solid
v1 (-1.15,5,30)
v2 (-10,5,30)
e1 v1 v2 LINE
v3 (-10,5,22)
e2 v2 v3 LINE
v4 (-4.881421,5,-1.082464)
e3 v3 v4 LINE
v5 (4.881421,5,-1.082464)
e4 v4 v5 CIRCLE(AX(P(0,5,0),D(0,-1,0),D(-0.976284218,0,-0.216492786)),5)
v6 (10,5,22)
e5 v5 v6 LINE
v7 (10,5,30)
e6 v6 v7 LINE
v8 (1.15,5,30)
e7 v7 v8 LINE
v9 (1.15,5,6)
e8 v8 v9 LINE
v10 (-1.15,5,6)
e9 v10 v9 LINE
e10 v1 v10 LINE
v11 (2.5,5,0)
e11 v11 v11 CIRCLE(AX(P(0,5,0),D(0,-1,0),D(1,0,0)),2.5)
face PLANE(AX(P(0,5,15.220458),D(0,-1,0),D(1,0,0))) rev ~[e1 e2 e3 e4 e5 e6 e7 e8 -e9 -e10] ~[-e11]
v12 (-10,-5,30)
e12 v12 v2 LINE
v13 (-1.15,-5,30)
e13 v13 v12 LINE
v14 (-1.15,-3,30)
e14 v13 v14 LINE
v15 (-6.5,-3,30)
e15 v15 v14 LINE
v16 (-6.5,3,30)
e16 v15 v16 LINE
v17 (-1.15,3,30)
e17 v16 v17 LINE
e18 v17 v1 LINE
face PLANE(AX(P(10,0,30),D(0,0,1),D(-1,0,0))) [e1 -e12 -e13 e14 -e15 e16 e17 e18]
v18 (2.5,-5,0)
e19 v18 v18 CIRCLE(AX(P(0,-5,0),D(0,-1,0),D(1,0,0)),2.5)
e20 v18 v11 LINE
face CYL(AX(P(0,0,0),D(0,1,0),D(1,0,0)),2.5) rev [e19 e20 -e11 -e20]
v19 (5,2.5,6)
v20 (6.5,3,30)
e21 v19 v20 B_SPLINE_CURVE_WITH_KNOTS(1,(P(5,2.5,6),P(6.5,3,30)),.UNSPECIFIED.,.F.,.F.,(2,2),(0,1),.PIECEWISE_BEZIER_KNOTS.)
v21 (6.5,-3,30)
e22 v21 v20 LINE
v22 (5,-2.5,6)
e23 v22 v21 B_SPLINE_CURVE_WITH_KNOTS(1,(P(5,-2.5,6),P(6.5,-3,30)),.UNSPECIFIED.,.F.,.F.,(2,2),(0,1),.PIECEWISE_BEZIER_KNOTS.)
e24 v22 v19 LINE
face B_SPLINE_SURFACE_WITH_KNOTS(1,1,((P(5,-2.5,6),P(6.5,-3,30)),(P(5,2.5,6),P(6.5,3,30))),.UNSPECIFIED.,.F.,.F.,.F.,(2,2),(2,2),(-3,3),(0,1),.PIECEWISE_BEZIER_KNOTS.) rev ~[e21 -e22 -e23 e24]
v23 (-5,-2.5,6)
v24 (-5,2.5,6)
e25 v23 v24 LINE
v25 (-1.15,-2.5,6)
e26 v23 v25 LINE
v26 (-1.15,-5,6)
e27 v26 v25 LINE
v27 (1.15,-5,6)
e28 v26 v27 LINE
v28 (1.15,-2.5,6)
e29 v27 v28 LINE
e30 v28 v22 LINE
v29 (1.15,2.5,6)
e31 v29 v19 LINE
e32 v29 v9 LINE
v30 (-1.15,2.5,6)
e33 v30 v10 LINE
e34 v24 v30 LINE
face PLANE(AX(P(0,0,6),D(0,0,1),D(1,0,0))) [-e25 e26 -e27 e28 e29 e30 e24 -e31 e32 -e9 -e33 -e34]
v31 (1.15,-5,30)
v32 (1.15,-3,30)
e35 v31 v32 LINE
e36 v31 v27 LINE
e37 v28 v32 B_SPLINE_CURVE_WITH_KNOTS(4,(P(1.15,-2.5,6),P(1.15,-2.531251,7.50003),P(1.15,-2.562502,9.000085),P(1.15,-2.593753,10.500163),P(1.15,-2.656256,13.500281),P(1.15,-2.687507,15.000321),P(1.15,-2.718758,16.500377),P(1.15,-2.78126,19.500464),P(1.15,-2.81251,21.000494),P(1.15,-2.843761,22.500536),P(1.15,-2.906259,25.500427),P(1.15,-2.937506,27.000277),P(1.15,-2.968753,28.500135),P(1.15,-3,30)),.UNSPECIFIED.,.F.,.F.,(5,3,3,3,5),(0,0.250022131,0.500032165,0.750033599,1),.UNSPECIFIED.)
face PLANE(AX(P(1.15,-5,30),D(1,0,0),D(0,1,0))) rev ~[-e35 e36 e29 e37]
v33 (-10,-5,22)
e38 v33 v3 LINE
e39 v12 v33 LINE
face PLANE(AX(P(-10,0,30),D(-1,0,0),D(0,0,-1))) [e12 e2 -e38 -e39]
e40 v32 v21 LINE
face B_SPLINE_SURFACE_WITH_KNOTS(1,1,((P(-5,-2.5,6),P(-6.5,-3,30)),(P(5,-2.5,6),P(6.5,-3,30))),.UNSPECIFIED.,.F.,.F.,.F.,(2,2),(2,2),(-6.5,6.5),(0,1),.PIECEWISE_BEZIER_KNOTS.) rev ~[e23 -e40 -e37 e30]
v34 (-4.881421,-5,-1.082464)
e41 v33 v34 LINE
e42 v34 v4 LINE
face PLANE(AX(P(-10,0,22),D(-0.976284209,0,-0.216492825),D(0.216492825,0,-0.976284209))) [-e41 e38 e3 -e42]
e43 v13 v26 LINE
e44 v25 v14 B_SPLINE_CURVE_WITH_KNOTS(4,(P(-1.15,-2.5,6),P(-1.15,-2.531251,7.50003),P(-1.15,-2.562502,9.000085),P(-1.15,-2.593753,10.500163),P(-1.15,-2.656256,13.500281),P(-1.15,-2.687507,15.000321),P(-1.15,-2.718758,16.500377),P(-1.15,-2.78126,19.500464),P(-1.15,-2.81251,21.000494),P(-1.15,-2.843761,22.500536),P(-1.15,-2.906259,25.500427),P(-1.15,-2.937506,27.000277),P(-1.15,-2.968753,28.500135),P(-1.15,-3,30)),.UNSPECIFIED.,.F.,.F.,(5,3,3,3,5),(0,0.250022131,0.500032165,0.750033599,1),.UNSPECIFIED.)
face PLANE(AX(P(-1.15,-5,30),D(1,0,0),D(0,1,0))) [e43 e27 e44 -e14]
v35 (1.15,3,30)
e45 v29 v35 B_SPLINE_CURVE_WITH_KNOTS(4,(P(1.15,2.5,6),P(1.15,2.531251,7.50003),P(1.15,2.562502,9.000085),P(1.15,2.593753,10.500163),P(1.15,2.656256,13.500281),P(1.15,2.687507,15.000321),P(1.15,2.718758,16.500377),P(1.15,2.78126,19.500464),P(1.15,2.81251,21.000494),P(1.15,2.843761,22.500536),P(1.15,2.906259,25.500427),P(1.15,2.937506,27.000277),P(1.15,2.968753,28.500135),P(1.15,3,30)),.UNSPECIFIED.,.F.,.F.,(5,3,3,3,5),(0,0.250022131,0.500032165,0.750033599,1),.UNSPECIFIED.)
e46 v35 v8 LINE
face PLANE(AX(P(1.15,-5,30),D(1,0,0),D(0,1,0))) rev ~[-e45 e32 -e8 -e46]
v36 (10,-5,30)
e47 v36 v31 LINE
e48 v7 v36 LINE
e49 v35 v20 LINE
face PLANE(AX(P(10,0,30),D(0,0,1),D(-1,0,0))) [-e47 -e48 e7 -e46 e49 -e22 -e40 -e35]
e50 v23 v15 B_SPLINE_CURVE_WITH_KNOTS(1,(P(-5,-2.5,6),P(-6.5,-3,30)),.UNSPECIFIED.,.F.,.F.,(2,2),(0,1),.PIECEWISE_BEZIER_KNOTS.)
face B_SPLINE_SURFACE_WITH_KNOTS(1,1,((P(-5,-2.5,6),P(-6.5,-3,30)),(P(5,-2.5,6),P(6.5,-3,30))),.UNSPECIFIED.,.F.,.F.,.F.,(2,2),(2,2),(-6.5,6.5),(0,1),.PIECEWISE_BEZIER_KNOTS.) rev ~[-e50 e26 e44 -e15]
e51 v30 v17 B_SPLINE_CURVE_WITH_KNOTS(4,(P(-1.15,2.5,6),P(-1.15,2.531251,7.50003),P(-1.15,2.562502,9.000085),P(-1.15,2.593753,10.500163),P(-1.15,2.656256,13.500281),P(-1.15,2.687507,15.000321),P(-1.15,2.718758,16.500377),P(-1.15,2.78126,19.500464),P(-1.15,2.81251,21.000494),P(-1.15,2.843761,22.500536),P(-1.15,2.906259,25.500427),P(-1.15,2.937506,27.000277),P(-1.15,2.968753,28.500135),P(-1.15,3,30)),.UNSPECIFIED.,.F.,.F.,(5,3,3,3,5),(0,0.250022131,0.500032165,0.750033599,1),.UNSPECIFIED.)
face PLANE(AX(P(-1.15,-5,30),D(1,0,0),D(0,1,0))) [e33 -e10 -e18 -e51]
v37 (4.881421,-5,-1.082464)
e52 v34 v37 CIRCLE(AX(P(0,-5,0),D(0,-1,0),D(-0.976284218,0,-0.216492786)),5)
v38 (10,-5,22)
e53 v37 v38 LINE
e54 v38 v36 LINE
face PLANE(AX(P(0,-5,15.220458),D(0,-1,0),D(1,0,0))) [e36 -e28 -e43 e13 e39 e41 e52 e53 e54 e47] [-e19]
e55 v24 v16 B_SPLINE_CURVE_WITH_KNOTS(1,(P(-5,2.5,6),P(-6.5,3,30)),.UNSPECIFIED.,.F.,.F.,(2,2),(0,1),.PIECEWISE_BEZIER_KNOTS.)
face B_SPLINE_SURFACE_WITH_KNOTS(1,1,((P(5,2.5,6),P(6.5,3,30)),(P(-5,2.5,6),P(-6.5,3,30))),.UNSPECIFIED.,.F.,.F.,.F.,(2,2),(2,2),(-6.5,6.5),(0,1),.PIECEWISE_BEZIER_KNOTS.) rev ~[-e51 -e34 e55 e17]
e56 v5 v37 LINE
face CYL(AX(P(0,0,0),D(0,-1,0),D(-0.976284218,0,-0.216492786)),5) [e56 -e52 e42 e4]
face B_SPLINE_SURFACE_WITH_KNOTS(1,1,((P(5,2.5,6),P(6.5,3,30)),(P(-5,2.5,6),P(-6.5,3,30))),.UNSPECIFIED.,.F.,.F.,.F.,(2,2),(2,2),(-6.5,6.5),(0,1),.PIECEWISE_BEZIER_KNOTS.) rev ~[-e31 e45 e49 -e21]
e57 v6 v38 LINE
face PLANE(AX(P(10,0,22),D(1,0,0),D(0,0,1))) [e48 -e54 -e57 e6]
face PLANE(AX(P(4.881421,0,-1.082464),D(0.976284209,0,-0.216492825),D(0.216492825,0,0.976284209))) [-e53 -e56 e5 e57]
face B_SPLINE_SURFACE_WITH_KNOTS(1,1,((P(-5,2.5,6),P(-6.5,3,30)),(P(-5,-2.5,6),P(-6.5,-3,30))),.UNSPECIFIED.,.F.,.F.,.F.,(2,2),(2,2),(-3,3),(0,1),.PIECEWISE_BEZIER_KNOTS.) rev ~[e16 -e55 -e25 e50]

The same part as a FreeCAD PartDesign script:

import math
import FreeCAD as App
import Part
import Sketcher

V = App.Vector

doc = App.newDocument("Part")
body = doc.addObject("PartDesign::Body", "Body")

sketch1 = doc.addObject("Sketcher::SketchObject", "Sketch")
body.addObject(sketch1)
sketch1.AttachmentSupport = (doc.XZ_Plane, [""])
sketch1.MapMode = "FlatFace"
sketch1.addGeometry(Part.ArcOfCircle(Part.Circle(V(0, 0, 0), V(0, 0, 1), 5), math.radians(-167.496879), math.radians(-12.503121)), False)
sketch1.addGeometry(Part.LineSegment(V(4.881421, -1.082464, 0), V(10, 22, 0)), False)
sketch1.addGeometry(Part.LineSegment(V(10, 22, 0), V(10, 30, 0)), False)
sketch1.addGeometry(Part.LineSegment(V(10, 30, 0), V(-10, 30, 0)), False)
sketch1.addGeometry(Part.LineSegment(V(-10, 30, 0), V(-10, 22, 0)), False)
sketch1.addGeometry(Part.LineSegment(V(-10, 22, 0), V(-4.881421, -1.082464, 0)), False)
sketch1.addGeometry(Part.Circle(V(0, 0, 0), V(0, 0, 1), 2.5), False)
sketch1.addConstraint(Sketcher.Constraint("Tangent", 0, 2, 1, 1))
sketch1.addConstraint(Sketcher.Constraint("Coincident", 1, 2, 2, 1))
sketch1.addConstraint(Sketcher.Constraint("Coincident", 2, 2, 3, 1))
sketch1.addConstraint(Sketcher.Constraint("Coincident", 3, 2, 4, 1))
sketch1.addConstraint(Sketcher.Constraint("Coincident", 4, 2, 5, 1))
sketch1.addConstraint(Sketcher.Constraint("Tangent", 5, 2, 0, 1))
sketch1.addConstraint(Sketcher.Constraint("Vertical", 2))
sketch1.addConstraint(Sketcher.Constraint("Horizontal", 3))
sketch1.addConstraint(Sketcher.Constraint("Vertical", 4))
sketch1.addConstraint(Sketcher.Constraint("Coincident", 0, 3, -1, 1))
sketch1.addConstraint(Sketcher.Constraint("Coincident", 6, 3, -1, 1))
sketch1.addConstraint(Sketcher.Constraint("Symmetric", 1, 2, 4, 2, -2))
sketch1.addConstraint(Sketcher.Constraint("Diameter", 6, 5.0))
sketch1.addConstraint(Sketcher.Constraint("Radius", 0, 5.0))
sketch1.addConstraint(Sketcher.Constraint("DistanceX", 3, 2, 3, 1, 20.0))
sketch1.addConstraint(Sketcher.Constraint("DistanceY", 2, 1, 2, 2, 8.0))
sketch1.addConstraint(Sketcher.Constraint("DistanceY", -1, 1, 1, 2, 22.0))
pad1 = doc.addObject("PartDesign::Pad", "Pad")
body.addObject(pad1)
pad1.Profile = sketch1
pad1.Length = 10
pad1.Midplane = True

sketch2 = doc.addObject("Sketcher::SketchObject", "Sketch001")
body.addObject(sketch2)
sketch2.AttachmentSupport = (doc.XY_Plane, [""])
sketch2.MapMode = "FlatFace"
sketch2.AttachmentOffset = App.Placement(V(0, 0, 30), App.Rotation())
sketch2.addGeometry(Part.LineSegment(V(-1.15, 5, 0), V(-1.15, -5, 0)), False)
sketch2.addGeometry(Part.LineSegment(V(-1.15, -5, 0), V(1.15, -5, 0)), False)
sketch2.addGeometry(Part.LineSegment(V(1.15, -5, 0), V(1.15, 5, 0)), False)
sketch2.addGeometry(Part.LineSegment(V(1.15, 5, 0), V(-1.15, 5, 0)), False)
sketch2.addConstraint(Sketcher.Constraint("Coincident", 0, 2, 1, 1))
sketch2.addConstraint(Sketcher.Constraint("Coincident", 1, 2, 2, 1))
sketch2.addConstraint(Sketcher.Constraint("Coincident", 2, 2, 3, 1))
sketch2.addConstraint(Sketcher.Constraint("Coincident", 3, 2, 0, 1))
sketch2.addConstraint(Sketcher.Constraint("Vertical", 0))
sketch2.addConstraint(Sketcher.Constraint("Horizontal", 1))
sketch2.addConstraint(Sketcher.Constraint("Vertical", 2))
sketch2.addConstraint(Sketcher.Constraint("Horizontal", 3))
sketch2.addConstraint(Sketcher.Constraint("Symmetric", 0, 2, 2, 2, -1, 1))
sketch2.addConstraint(Sketcher.Constraint("DistanceY", 0, 2, 0, 1, 10.0))
sketch2.addConstraint(Sketcher.Constraint("DistanceX", 1, 1, 1, 2, 2.3))
pocket1 = doc.addObject("PartDesign::Pocket", "Pocket")
body.addObject(pocket1)
pocket1.Profile = sketch2
pocket1.Length = 24

sketch3 = doc.addObject("Sketcher::SketchObject", "Sketch002")
body.addObject(sketch3)
sketch3.AttachmentSupport = (doc.XY_Plane, [""])
sketch3.MapMode = "FlatFace"
sketch3.AttachmentOffset = App.Placement(V(0, 0, 6), App.Rotation())
sketch3.addGeometry(Part.LineSegment(V(-5, 2.5, 0), V(-5, -2.5, 0)), False)
sketch3.addGeometry(Part.LineSegment(V(-5, -2.5, 0), V(5, -2.5, 0)), False)
sketch3.addGeometry(Part.LineSegment(V(5, -2.5, 0), V(5, 2.5, 0)), False)
sketch3.addGeometry(Part.LineSegment(V(5, 2.5, 0), V(-5, 2.5, 0)), False)
sketch3.addConstraint(Sketcher.Constraint("Coincident", 0, 2, 1, 1))
sketch3.addConstraint(Sketcher.Constraint("Coincident", 1, 2, 2, 1))
sketch3.addConstraint(Sketcher.Constraint("Coincident", 2, 2, 3, 1))
sketch3.addConstraint(Sketcher.Constraint("Coincident", 3, 2, 0, 1))
sketch3.addConstraint(Sketcher.Constraint("Vertical", 0))
sketch3.addConstraint(Sketcher.Constraint("Horizontal", 1))
sketch3.addConstraint(Sketcher.Constraint("Vertical", 2))
sketch3.addConstraint(Sketcher.Constraint("Horizontal", 3))
sketch3.addConstraint(Sketcher.Constraint("Symmetric", 0, 2, 2, 2, -1, 1))
sketch3.addConstraint(Sketcher.Constraint("DistanceX", 1, 1, 1, 2, 10.0))
sketch3.addConstraint(Sketcher.Constraint("DistanceY", 0, 2, 0, 1, 5.0))

sketch4 = doc.addObject("Sketcher::SketchObject", "Sketch003")
body.addObject(sketch4)
sketch4.AttachmentSupport = (doc.XY_Plane, [""])
sketch4.MapMode = "FlatFace"
sketch4.AttachmentOffset = App.Placement(V(0, 0, 30), App.Rotation())
sketch4.addGeometry(Part.LineSegment(V(-6.5, 3, 0), V(-6.5, -3, 0)), False)
sketch4.addGeometry(Part.LineSegment(V(-6.5, -3, 0), V(6.5, -3, 0)), False)
sketch4.addGeometry(Part.LineSegment(V(6.5, -3, 0), V(6.5, 3, 0)), False)
sketch4.addGeometry(Part.LineSegment(V(6.5, 3, 0), V(-6.5, 3, 0)), False)
sketch4.addConstraint(Sketcher.Constraint("Coincident", 0, 2, 1, 1))
sketch4.addConstraint(Sketcher.Constraint("Coincident", 1, 2, 2, 1))
sketch4.addConstraint(Sketcher.Constraint("Coincident", 2, 2, 3, 1))
sketch4.addConstraint(Sketcher.Constraint("Coincident", 3, 2, 0, 1))
sketch4.addConstraint(Sketcher.Constraint("Vertical", 0))
sketch4.addConstraint(Sketcher.Constraint("Horizontal", 1))
sketch4.addConstraint(Sketcher.Constraint("Vertical", 2))
sketch4.addConstraint(Sketcher.Constraint("Horizontal", 3))
sketch4.addConstraint(Sketcher.Constraint("Symmetric", 0, 2, 2, 2, -1, 1))
sketch4.addConstraint(Sketcher.Constraint("DistanceX", 1, 1, 1, 2, 13.0))
sketch4.addConstraint(Sketcher.Constraint("DistanceY", 0, 2, 0, 1, 6.0))

subtractiveloft = doc.addObject("PartDesign::SubtractiveLoft", "SubtractiveLoft")
body.addObject(subtractiveloft)
subtractiveloft.Profile = sketch3
subtractiveloft.Sections = [sketch4]

doc.recompute()
